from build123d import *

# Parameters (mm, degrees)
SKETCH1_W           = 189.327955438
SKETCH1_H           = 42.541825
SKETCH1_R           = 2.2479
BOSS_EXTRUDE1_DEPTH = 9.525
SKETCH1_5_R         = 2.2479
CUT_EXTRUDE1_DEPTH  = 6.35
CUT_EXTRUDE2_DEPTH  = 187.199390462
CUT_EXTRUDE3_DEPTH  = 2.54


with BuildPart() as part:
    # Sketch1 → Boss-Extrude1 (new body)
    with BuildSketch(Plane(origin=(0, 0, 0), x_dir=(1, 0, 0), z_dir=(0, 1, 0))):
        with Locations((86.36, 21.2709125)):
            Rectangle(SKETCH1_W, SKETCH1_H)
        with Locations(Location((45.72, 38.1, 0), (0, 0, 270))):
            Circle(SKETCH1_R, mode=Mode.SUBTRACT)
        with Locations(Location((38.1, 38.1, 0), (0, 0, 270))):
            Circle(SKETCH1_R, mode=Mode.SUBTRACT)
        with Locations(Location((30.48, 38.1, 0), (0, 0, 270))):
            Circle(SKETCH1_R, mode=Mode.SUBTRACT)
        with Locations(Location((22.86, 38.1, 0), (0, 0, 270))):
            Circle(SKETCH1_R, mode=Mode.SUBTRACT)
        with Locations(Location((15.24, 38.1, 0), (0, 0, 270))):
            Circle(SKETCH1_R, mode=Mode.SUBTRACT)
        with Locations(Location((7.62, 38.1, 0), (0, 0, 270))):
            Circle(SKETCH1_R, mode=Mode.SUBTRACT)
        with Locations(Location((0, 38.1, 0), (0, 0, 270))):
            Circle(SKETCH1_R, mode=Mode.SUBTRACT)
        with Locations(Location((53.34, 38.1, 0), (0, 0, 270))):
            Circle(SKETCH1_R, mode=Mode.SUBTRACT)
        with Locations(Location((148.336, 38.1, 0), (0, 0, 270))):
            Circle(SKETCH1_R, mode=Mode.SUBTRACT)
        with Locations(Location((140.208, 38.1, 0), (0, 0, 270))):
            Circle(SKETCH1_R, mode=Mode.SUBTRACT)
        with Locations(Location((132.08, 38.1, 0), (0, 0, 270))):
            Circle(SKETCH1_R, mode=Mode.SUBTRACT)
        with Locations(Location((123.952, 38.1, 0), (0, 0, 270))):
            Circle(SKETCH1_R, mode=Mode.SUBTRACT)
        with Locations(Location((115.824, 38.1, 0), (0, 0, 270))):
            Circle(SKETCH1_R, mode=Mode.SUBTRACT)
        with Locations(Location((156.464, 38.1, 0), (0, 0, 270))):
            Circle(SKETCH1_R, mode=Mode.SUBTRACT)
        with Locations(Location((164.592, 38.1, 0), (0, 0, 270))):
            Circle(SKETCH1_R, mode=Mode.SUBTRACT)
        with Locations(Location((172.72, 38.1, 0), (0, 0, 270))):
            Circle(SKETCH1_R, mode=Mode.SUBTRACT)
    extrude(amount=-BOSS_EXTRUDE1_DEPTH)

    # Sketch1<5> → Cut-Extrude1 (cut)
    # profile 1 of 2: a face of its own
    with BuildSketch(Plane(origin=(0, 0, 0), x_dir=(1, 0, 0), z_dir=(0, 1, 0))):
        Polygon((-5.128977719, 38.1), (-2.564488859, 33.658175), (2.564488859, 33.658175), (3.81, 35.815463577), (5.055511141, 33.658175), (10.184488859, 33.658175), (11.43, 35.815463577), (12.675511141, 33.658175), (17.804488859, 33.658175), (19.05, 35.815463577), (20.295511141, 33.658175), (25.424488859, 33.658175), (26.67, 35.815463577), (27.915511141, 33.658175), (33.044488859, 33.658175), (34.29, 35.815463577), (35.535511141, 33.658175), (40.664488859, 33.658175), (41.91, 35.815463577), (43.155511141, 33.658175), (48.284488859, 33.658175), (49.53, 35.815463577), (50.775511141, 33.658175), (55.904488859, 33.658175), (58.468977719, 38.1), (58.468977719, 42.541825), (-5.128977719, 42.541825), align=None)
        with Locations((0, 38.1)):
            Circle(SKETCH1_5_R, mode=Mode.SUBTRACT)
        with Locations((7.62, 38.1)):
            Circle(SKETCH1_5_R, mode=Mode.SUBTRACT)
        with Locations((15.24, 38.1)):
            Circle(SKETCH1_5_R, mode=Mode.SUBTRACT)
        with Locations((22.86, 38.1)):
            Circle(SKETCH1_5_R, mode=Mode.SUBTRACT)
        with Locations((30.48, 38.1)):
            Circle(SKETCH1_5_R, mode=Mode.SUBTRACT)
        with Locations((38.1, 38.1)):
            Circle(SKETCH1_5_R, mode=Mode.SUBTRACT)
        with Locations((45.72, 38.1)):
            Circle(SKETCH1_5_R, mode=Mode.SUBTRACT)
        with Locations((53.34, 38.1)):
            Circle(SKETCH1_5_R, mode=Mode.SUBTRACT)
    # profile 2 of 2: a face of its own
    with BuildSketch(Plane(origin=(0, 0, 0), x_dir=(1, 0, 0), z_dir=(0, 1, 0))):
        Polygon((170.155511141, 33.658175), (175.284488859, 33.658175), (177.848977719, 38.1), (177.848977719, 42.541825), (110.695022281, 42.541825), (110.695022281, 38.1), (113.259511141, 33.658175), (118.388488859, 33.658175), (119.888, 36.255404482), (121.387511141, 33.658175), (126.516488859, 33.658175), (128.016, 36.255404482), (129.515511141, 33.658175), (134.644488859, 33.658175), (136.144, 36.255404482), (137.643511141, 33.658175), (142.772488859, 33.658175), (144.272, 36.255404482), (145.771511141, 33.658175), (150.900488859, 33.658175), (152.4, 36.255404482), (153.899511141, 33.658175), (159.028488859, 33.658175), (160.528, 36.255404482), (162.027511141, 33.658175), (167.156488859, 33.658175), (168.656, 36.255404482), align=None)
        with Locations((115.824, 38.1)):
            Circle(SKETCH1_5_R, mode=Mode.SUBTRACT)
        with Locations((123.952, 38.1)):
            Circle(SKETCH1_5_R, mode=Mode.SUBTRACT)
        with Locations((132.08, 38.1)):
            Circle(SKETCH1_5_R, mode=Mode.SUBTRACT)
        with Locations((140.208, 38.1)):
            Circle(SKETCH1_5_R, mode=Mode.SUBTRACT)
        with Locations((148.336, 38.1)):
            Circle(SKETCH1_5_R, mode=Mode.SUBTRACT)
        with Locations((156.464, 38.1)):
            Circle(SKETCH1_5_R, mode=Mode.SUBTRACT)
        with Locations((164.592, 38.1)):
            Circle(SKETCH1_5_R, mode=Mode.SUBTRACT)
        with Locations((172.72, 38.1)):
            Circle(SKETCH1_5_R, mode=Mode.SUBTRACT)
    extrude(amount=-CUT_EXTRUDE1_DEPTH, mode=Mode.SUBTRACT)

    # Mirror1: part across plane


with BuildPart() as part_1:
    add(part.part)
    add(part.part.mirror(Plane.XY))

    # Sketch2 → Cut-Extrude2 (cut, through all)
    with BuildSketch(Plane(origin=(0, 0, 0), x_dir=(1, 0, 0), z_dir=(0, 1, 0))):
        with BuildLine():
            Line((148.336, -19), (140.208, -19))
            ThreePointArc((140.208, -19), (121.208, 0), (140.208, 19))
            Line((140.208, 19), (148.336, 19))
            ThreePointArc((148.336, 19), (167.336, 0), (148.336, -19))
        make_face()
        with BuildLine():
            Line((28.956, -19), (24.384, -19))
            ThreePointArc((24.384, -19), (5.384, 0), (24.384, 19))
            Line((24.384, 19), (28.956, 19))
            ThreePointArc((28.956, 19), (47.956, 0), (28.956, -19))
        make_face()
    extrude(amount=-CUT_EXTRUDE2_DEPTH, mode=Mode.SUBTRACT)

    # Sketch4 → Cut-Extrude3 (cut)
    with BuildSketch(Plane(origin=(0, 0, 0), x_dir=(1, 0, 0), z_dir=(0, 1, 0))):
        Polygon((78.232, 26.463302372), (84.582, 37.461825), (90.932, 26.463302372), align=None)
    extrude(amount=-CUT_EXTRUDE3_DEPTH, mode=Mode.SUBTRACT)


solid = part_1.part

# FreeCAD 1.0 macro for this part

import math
import FreeCAD as App
import Part
import Sketcher
from FreeCAD import Vector
Q = App.Units.Quantity

doc = App.newDocument("Part")
body = doc.addObject("PartDesign::Body", "Body")

sketch1 = doc.addObject("Sketcher::SketchObject", "Sketch")
body.addObject(sketch1)
sketch1.AttachmentSupport = (doc.XZ_Plane, [""])
sketch1.MapMode = "FlatFace"
sketch1.addGeometry([
    Part.LineSegment(Vector(-8.303978, -42.541825, 0), Vector(-8.303978, 0, 0)),
    Part.LineSegment(Vector(-8.303978, 0, 0), Vector(181.023978, 0, 0)),
    Part.LineSegment(Vector(181.023978, 0, 0), Vector(181.023978, -42.541825, 0)),
    Part.LineSegment(Vector(181.023978, -42.541825, 0), Vector(-8.303978, -42.541825, 0)),
    Part.Circle(Vector(0, -38.1, 0), Vector(0, 0, 1), 2.2479),
    Part.Circle(Vector(7.62, -38.1, 0), Vector(0, 0, 1), 2.2479),
    Part.Circle(Vector(15.24, -38.1, 0), Vector(0, 0, 1), 2.2479),
    Part.Circle(Vector(22.86, -38.1, 0), Vector(0, 0, 1), 2.2479),
    Part.Circle(Vector(30.48, -38.1, 0), Vector(0, 0, 1), 2.2479),
    Part.Circle(Vector(38.1, -38.1, 0), Vector(0, 0, 1), 2.2479),
    Part.Circle(Vector(45.72, -38.1, 0), Vector(0, 0, 1), 2.2479),
    Part.Circle(Vector(53.34, -38.1, 0), Vector(0, 0, 1), 2.2479),
    Part.Circle(Vector(115.824, -38.1, 0), Vector(0, 0, 1), 2.2479),
    Part.Circle(Vector(123.952, -38.1, 0), Vector(0, 0, 1), 2.2479),
    Part.Circle(Vector(132.08, -38.1, 0), Vector(0, 0, 1), 2.2479),
    Part.Circle(Vector(140.208, -38.1, 0), Vector(0, 0, 1), 2.2479),
    Part.Circle(Vector(148.336, -38.1, 0), Vector(0, 0, 1), 2.2479),
    Part.Circle(Vector(156.464, -38.1, 0), Vector(0, 0, 1), 2.2479),
    Part.Circle(Vector(164.592, -38.1, 0), Vector(0, 0, 1), 2.2479),
    Part.Circle(Vector(172.72, -38.1, 0), Vector(0, 0, 1), 2.2479),
], False)
sketch1.addConstraint([
    Sketcher.Constraint("Coincident", 0, 2, 1, 1),
    Sketcher.Constraint("Coincident", 1, 2, 2, 1),
    Sketcher.Constraint("Coincident", 2, 2, 3, 1),
    Sketcher.Constraint("Coincident", 3, 2, 0, 1),
    Sketcher.Constraint("Vertical", 0),
    Sketcher.Constraint("Horizontal", 1),
    Sketcher.Constraint("Vertical", 2),
    Sketcher.Constraint("Horizontal", 3),
    Sketcher.Constraint("Equal", 4, 5),
    Sketcher.Constraint("Equal", 5, 6),
    Sketcher.Constraint("Equal", 6, 7),
    Sketcher.Constraint("Equal", 7, 8),
    Sketcher.Constraint("Equal", 8, 9),
    Sketcher.Constraint("Equal", 9, 10),
    Sketcher.Constraint("Equal", 10, 11),
    Sketcher.Constraint("Equal", 11, 12),
    Sketcher.Constraint("Equal", 12, 13),
    Sketcher.Constraint("Equal", 13, 14),
    Sketcher.Constraint("Equal", 14, 15),
    Sketcher.Constraint("Equal", 15, 16),
    Sketcher.Constraint("Equal", 16, 17),
    Sketcher.Constraint("Equal", 17, 18),
    Sketcher.Constraint("Equal", 18, 19),
    Sketcher.Constraint("PointOnObject", 4, 3, -2),
    Sketcher.Constraint("PointOnObject", 0, 2, -1),
    Sketcher.Constraint("Horizontal", 4, 3, 5, 3),
    Sketcher.Constraint("Horizontal", 5, 3, 6, 3),
    Sketcher.Constraint("Horizontal", 6, 3, 7, 3),
    Sketcher.Constraint("Horizontal", 7, 3, 8, 3),
    Sketcher.Constraint("Horizontal", 8, 3, 9, 3),
    Sketcher.Constraint("Horizontal", 9, 3, 10, 3),
    Sketcher.Constraint("Horizontal", 10, 3, 11, 3),
    Sketcher.Constraint("Horizontal", 11, 3, 12, 3),
    Sketcher.Constraint("Horizontal", 12, 3, 13, 3),
    Sketcher.Constraint("Horizontal", 13, 3, 14, 3),
    Sketcher.Constraint("Horizontal", 14, 3, 15, 3),
    Sketcher.Constraint("Horizontal", 15, 3, 16, 3),
    Sketcher.Constraint("Horizontal", 16, 3, 17, 3),
    Sketcher.Constraint("Horizontal", 17, 3, 18, 3),
    Sketcher.Constraint("Horizontal", 18, 3, 19, 3),
    Sketcher.Constraint("Diameter", 4, Q("0.177 in")),
    Sketcher.Constraint("DistanceY", 4, 3, -1, 1, Q("1.5 in")),
    Sketcher.Constraint("DistanceX", -1, 1, 5, 3, Q("0.3 in")),
    Sketcher.Constraint("DistanceX", -1, 1, 6, 3, Q("0.6 in")),
    Sketcher.Constraint("DistanceX", -1, 1, 7, 3, Q("0.9 in")),
    Sketcher.Constraint("DistanceX", -1, 1, 8, 3, Q("1.2 in")),
    Sketcher.Constraint("DistanceX", -1, 1, 9, 3, Q("1.5 in")),
    Sketcher.Constraint("DistanceX", -1, 1, 10, 3, Q("1.8 in")),
    Sketcher.Constraint("DistanceX", -1, 1, 11, 3, Q("2.1 in")),
    Sketcher.Constraint("DistanceX", -1, 1, 14, 3, Q("5.2 in")),
    Sketcher.Constraint("DistanceX", -1, 1, 19, 3, Q("6.8 in")),
    Sketcher.Constraint("DistanceX", 12, 3, 17, 3, Q("1.6 in")),
    Sketcher.Constraint("DistanceX", 13, 3, 18, 3, Q("1.6 in")),
    Sketcher.Constraint("DistanceX", -1, 1, 12, 3, Q("4.56 in")),
    Sketcher.Constraint("DistanceX", -1, 1, 13, 3, Q("4.88 in")),
    Sketcher.Constraint("DistanceX", -1, 1, 15, 3, Q("5.52 in")),
    Sketcher.Constraint("DistanceX", -1, 1, 16, 3, Q("5.84 in")),
    Sketcher.Constraint("DistanceX", 1, 1, 1, 2, 189.327955),
    Sketcher.Constraint("DistanceY", 0, 1, 0, 2, 42.541825),
    Sketcher.Constraint("DistanceX", 0, 2, -1, 1, 8.303978),
])
pad1 = doc.addObject("PartDesign::Pad", "Pad")
body.addObject(pad1)
pad1.Profile = sketch1
pad1.Length = Q("0.375 in")

sketch2 = doc.addObject("Sketcher::SketchObject", "Sketch001")
body.addObject(sketch2)
sketch2.AttachmentSupport = (doc.XZ_Plane, [""])
sketch2.MapMode = "FlatFace"
sketch2.addGeometry([
    Part.LineSegment(Vector(-5.128978, -38.1, 0), Vector(-2.564489, -33.658175, 0)),
    Part.LineSegment(Vector(-2.564489, -33.658175, 0), Vector(2.564489, -33.658175, 0)),
    Part.LineSegment(Vector(2.564489, -33.658175, 0), Vector(3.81, -35.815464, 0)),
    Part.LineSegment(Vector(3.81, -35.815464, 0), Vector(5.055511, -33.658175, 0)),
    Part.LineSegment(Vector(5.055511, -33.658175, 0), Vector(10.184489, -33.658175, 0)),
    Part.LineSegment(Vector(10.184489, -33.658175, 0), Vector(11.43, -35.815464, 0)),
    Part.LineSegment(Vector(11.43, -35.815464, 0), Vector(12.675511, -33.658175, 0)),
    Part.LineSegment(Vector(12.675511, -33.658175, 0), Vector(17.804489, -33.658175, 0)),
    Part.LineSegment(Vector(17.804489, -33.658175, 0), Vector(19.05, -35.815464, 0)),
    Part.LineSegment(Vector(19.05, -35.815464, 0), Vector(20.295511, -33.658175, 0)),
    Part.LineSegment(Vector(20.295511, -33.658175, 0), Vector(25.424489, -33.658175, 0)),
    Part.LineSegment(Vector(25.424489, -33.658175, 0), Vector(26.67, -35.815464, 0)),
    Part.LineSegment(Vector(26.67, -35.815464, 0), Vector(27.915511, -33.658175, 0)),
    Part.LineSegment(Vector(27.915511, -33.658175, 0), Vector(33.044489, -33.658175, 0)),
    Part.LineSegment(Vector(33.044489, -33.658175, 0), Vector(34.29, -35.815464, 0)),
    Part.LineSegment(Vector(34.29, -35.815464, 0), Vector(35.535511, -33.658175, 0)),
    Part.LineSegment(Vector(35.535511, -33.658175, 0), Vector(40.664489, -33.658175, 0)),
    Part.LineSegment(Vector(40.664489, -33.658175, 0), Vector(41.91, -35.815464, 0)),
    Part.LineSegment(Vector(41.91, -35.815464, 0), Vector(43.155511, -33.658175, 0)),
    Part.LineSegment(Vector(43.155511, -33.658175, 0), Vector(48.284489, -33.658175, 0)),
    Part.LineSegment(Vector(48.284489, -33.658175, 0), Vector(49.53, -35.815464, 0)),
    Part.LineSegment(Vector(49.53, -35.815464, 0), Vector(50.775511, -33.658175, 0)),
    Part.LineSegment(Vector(50.775511, -33.658175, 0), Vector(55.904489, -33.658175, 0)),
    Part.LineSegment(Vector(55.904489, -33.658175, 0), Vector(58.468978, -38.1, 0)),
    Part.LineSegment(Vector(58.468978, -38.1, 0), Vector(58.468978, -42.541825, 0)),
    Part.LineSegment(Vector(58.468978, -42.541825, 0), Vector(-5.128978, -42.541825, 0)),
    Part.LineSegment(Vector(-5.128978, -42.541825, 0), Vector(-5.128978, -38.1, 0)),
    Part.Circle(Vector(0, -38.1, 0), Vector(0, 0, 1), 2.2479),
    Part.Circle(Vector(7.62, -38.1, 0), Vector(0, 0, 1), 2.2479),
    Part.Circle(Vector(15.24, -38.1, 0), Vector(0, 0, 1), 2.2479),
    Part.Circle(Vector(22.86, -38.1, 0), Vector(0, 0, 1), 2.2479),
    Part.Circle(Vector(30.48, -38.1, 0), Vector(0, 0, 1), 2.2479),
    Part.Circle(Vector(38.1, -38.1, 0), Vector(0, 0, 1), 2.2479),
    Part.Circle(Vector(45.72, -38.1, 0), Vector(0, 0, 1), 2.2479),
    Part.Circle(Vector(53.34, -38.1, 0), Vector(0, 0, 1), 2.2479),
    Part.LineSegment(Vector(170.155511, -33.658175, 0), Vector(175.284489, -33.658175, 0)),
    Part.LineSegment(Vector(175.284489, -33.658175, 0), Vector(177.848978, -38.1, 0)),
    Part.LineSegment(Vector(177.848978, -38.1, 0), Vector(177.848978, -42.541825, 0)),
    Part.LineSegment(Vector(177.848978, -42.541825, 0), Vector(110.695022, -42.541825, 0)),
    Part.LineSegment(Vector(110.695022, -42.541825, 0), Vector(110.695022, -38.1, 0)),
    Part.LineSegment(Vector(110.695022, -38.1, 0), Vector(113.259511, -33.658175, 0)),
    Part.LineSegment(Vector(113.259511, -33.658175, 0), Vector(118.388489, -33.658175, 0)),
    Part.LineSegment(Vector(118.388489, -33.658175, 0), Vector(119.888, -36.255404, 0)),
    Part.LineSegment(Vector(119.888, -36.255404, 0), Vector(121.387511, -33.658175, 0)),
    Part.LineSegment(Vector(121.387511, -33.658175, 0), Vector(126.516489, -33.658175, 0)),
    Part.LineSegment(Vector(126.516489, -33.658175, 0), Vector(128.016, -36.255404, 0)),
    Part.LineSegment(Vector(128.016, -36.255404, 0), Vector(129.515511, -33.658175, 0)),
    Part.LineSegment(Vector(129.515511, -33.658175, 0), Vector(134.644489, -33.658175, 0)),
    Part.LineSegment(Vector(134.644489, -33.658175, 0), Vector(136.144, -36.255404, 0)),
    Part.LineSegment(Vector(136.144, -36.255404, 0), Vector(137.643511, -33.658175, 0)),
    Part.LineSegment(Vector(137.643511, -33.658175, 0), Vector(142.772489, -33.658175, 0)),
    Part.LineSegment(Vector(142.772489, -33.658175, 0), Vector(144.272, -36.255404, 0)),
    Part.LineSegment(Vector(144.272, -36.255404, 0), Vector(145.771511, -33.658175, 0)),
    Part.LineSegment(Vector(145.771511, -33.658175, 0), Vector(150.900489, -33.658175, 0)),
    Part.LineSegment(Vector(150.900489, -33.658175, 0), Vector(152.4, -36.255404, 0)),
    Part.LineSegment(Vector(152.4, -36.255404, 0), Vector(153.899511, -33.658175, 0)),
    Part.LineSegment(Vector(153.899511, -33.658175, 0), Vector(159.028489, -33.658175, 0)),
    Part.LineSegment(Vector(159.028489, -33.658175, 0), Vector(160.528, -36.255404, 0)),
    Part.LineSegment(Vector(160.528, -36.255404, 0), Vector(162.027511, -33.658175, 0)),
    Part.LineSegment(Vector(162.027511, -33.658175, 0), Vector(167.156489, -33.658175, 0)),
    Part.LineSegment(Vector(167.156489, -33.658175, 0), Vector(168.656, -36.255404, 0)),
    Part.LineSegment(Vector(168.656, -36.255404, 0), Vector(170.155511, -33.658175, 0)),
    Part.Circle(Vector(115.824, -38.1, 0), Vector(0, 0, 1), 2.2479),
    Part.Circle(Vector(123.952, -38.1, 0), Vector(0, 0, 1), 2.2479),
    Part.Circle(Vector(132.08, -38.1, 0), Vector(0, 0, 1), 2.2479),
    Part.Circle(Vector(140.208, -38.1, 0), Vector(0, 0, 1), 2.2479),
    Part.Circle(Vector(148.336, -38.1, 0), Vector(0, 0, 1), 2.2479),
    Part.Circle(Vector(156.464, -38.1, 0), Vector(0, 0, 1), 2.2479),
    Part.Circle(Vector(164.592, -38.1, 0), Vector(0, 0, 1), 2.2479),
    Part.Circle(Vector(172.72, -38.1, 0), Vector(0, 0, 1), 2.2479),
], False)
sketch2.addConstraint([
    Sketcher.Constraint("Coincident", 0, 2, 1, 1),
    Sketcher.Constraint("Coincident", 1, 2, 2, 1),
    Sketcher.Constraint("Coincident", 2, 2, 3, 1),
    Sketcher.Constraint("Coincident", 3, 2, 4, 1),
    Sketcher.Constraint("Coincident", 4, 2, 5, 1),
    Sketcher.Constraint("Coincident", 5, 2, 6, 1),
    Sketcher.Constraint("Coincident", 6, 2, 7, 1),
    Sketcher.Constraint("Coincident", 7, 2, 8, 1),
    Sketcher.Constraint("Coincident", 8, 2, 9, 1),
    Sketcher.Constraint("Coincident", 9, 2, 10, 1),
    Sketcher.Constraint("Coincident", 10, 2, 11, 1),
    Sketcher.Constraint("Coincident", 11, 2, 12, 1),
    Sketcher.Constraint("Coincident", 12, 2, 13, 1),
    Sketcher.Constraint("Coincident", 13, 2, 14, 1),
    Sketcher.Constraint("Coincident", 14, 2, 15, 1),
    Sketcher.Constraint("Coincident", 15, 2, 16, 1),
    Sketcher.Constraint("Coincident", 16, 2, 17, 1),
    Sketcher.Constraint("Coincident", 17, 2, 18, 1),
    Sketcher.Constraint("Coincident", 18, 2, 19, 1),
    Sketcher.Constraint("Coincident", 19, 2, 20, 1),
    Sketcher.Constraint("Coincident", 20, 2, 21, 1),
    Sketcher.Constraint("Coincident", 21, 2, 22, 1),
    Sketcher.Constraint("Coincident", 22, 2, 23, 1),
    Sketcher.Constraint("Coincident", 23, 2, 24, 1),
    Sketcher.Constraint("Coincident", 24, 2, 25, 1),
    Sketcher.Constraint("Coincident", 25, 2, 26, 1),
    Sketcher.Constraint("Coincident", 26, 2, 0, 1),
    Sketcher.Constraint("Coincident", 35, 2, 36, 1),
    Sketcher.Constraint("Coincident", 36, 2, 37, 1),
    Sketcher.Constraint("Coincident", 37, 2, 38, 1),
    Sketcher.Constraint("Coincident", 38, 2, 39, 1),
    Sketcher.Constraint("Coincident", 39, 2, 40, 1),
    Sketcher.Constraint("Coincident", 40, 2, 41, 1),
    Sketcher.Constraint("Coincident", 41, 2, 42, 1),
    Sketcher.Constraint("Coincident", 42, 2, 43, 1),
    Sketcher.Constraint("Coincident", 43, 2, 44, 1),
    Sketcher.Constraint("Coincident", 44, 2, 45, 1),
    Sketcher.Constraint("Coincident", 45, 2, 46, 1),
    Sketcher.Constraint("Coincident", 46, 2, 47, 1),
    Sketcher.Constraint("Coincident", 47, 2, 48, 1),
    Sketcher.Constraint("Coincident", 48, 2, 49, 1),
    Sketcher.Constraint("Coincident", 49, 2, 50, 1),
    Sketcher.Constraint("Coincident", 50, 2, 51, 1),
    Sketcher.Constraint("Coincident", 51, 2, 52, 1),
    Sketcher.Constraint("Coincident", 52, 2, 53, 1),
    Sketcher.Constraint("Coincident", 53, 2, 54, 1),
    Sketcher.Constraint("Coincident", 54, 2, 55, 1),
    Sketcher.Constraint("Coincident", 55, 2, 56, 1),
    Sketcher.Constraint("Coincident", 56, 2, 57, 1),
    Sketcher.Constraint("Coincident", 57, 2, 58, 1),
    Sketcher.Constraint("Coincident", 58, 2, 59, 1),
    Sketcher.Constraint("Coincident", 59, 2, 60, 1),
    Sketcher.Constraint("Coincident", 60, 2, 61, 1),
    Sketcher.Constraint("Coincident", 61, 2, 35, 1),
    Sketcher.Constraint("Horizontal", 1),
    Sketcher.Constraint("Horizontal", 4),
    Sketcher.Constraint("Horizontal", 7),
    Sketcher.Constraint("Horizontal", 10),
    Sketcher.Constraint("Horizontal", 13),
    Sketcher.Constraint("Horizontal", 16),
    Sketcher.Constraint("Horizontal", 19),
    Sketcher.Constraint("Horizontal", 22),
    Sketcher.Constraint("Vertical", 24),
    Sketcher.Constraint("Horizontal", 25),
    Sketcher.Constraint("Vertical", 26),
    Sketcher.Constraint("Horizontal", 35),
    Sketcher.Constraint("Vertical", 37),
    Sketcher.Constraint("Horizontal", 38),
    Sketcher.Constraint("Vertical", 39),
    Sketcher.Constraint("Horizontal", 41),
    Sketcher.Constraint("Horizontal", 44),
    Sketcher.Constraint("Horizontal", 47),
    Sketcher.Constraint("Horizontal", 50),
    Sketcher.Constraint("Horizontal", 53),
    Sketcher.Constraint("Horizontal", 56),
    Sketcher.Constraint("Horizontal", 59),
    Sketcher.Constraint("Equal", 27, 28),
    Sketcher.Constraint("Equal", 28, 29),
    Sketcher.Constraint("Equal", 29, 30),
    Sketcher.Constraint("Equal", 30, 31),
    Sketcher.Constraint("Equal", 31, 32),
    Sketcher.Constraint("Equal", 32, 33),
    Sketcher.Constraint("Equal", 33, 34),
    Sketcher.Constraint("Equal", 34, 62),
    Sketcher.Constraint("Equal", 62, 63),
    Sketcher.Constraint("Equal", 63, 64),
    Sketcher.Constraint("Equal", 64, 65),
    Sketcher.Constraint("Equal", 65, 66),
    Sketcher.Constraint("Equal", 66, 67),
    Sketcher.Constraint("Equal", 67, 68),
    Sketcher.Constraint("Equal", 68, 69),
    Sketcher.Constraint("PointOnObject", 27, 3, -2),
    Sketcher.Constraint("Parallel", 0, 3),
    Sketcher.Constraint("Parallel", 2, 5),
    Sketcher.Constraint("Parallel", 3, 6),
    Sketcher.Constraint("Parallel", 5, 8),
    Sketcher.Constraint("Parallel", 6, 9),
    Sketcher.Constraint("Parallel", 8, 11),
    Sketcher.Constraint("Parallel", 9, 12),
    Sketcher.Constraint("Parallel", 11, 14),
    Sketcher.Constraint("Parallel", 12, 15),
    Sketcher.Constraint("Parallel", 14, 17),
    Sketcher.Constraint("Parallel", 15, 18),
    Sketcher.Constraint("Parallel", 17, 20),
    Sketcher.Constraint("Parallel", 18, 21),
    Sketcher.Constraint("Parallel", 20, 23),
    Sketcher.Constraint("Parallel", 23, 36),
    Sketcher.Constraint("Parallel", 21, 40),
    Sketcher.Constraint("Parallel", 36, 42),
    Sketcher.Constraint("Parallel", 40, 43),
    Sketcher.Constraint("Parallel", 42, 45),
    Sketcher.Constraint("Parallel", 43, 46),
    Sketcher.Constraint("Parallel", 45, 48),
    Sketcher.Constraint("Parallel", 46, 49),
    Sketcher.Constraint("Parallel", 48, 51),
    Sketcher.Constraint("Parallel", 49, 52),
    Sketcher.Constraint("Parallel", 51, 54),
    Sketcher.Constraint("Parallel", 52, 55),
    Sketcher.Constraint("Parallel", 54, 57),
    Sketcher.Constraint("Parallel", 55, 58),
    Sketcher.Constraint("Parallel", 57, 60),
    Sketcher.Constraint("Parallel", 58, 61),
    Sketcher.Constraint("Horizontal", 27, 3, 28, 3),
    Sketcher.Constraint("Horizontal", 28, 3, 29, 3),
    Sketcher.Constraint("Horizontal", 29, 3, 30, 3),
    Sketcher.Constraint("Horizontal", 30, 3, 31, 3),
    Sketcher.Constraint("Horizontal", 31, 3, 32, 3),
    Sketcher.Constraint("Horizontal", 32, 3, 33, 3),
    Sketcher.Constraint("Horizontal", 33, 3, 34, 3),
    Sketcher.Constraint("Horizontal", 34, 3, 62, 3),
    Sketcher.Constraint("Horizontal", 62, 3, 63, 3),
    Sketcher.Constraint("Horizontal", 63, 3, 64, 3),
    Sketcher.Constraint("Horizontal", 64, 3, 65, 3),
    Sketcher.Constraint("Horizontal", 65, 3, 66, 3),
    Sketcher.Constraint("Horizontal", 66, 3, 67, 3),
    Sketcher.Constraint("Horizontal", 67, 3, 68, 3),
    Sketcher.Constraint("Horizontal", 68, 3, 69, 3),
    Sketcher.Constraint("Horizontal", 1, 2, 3, 2),
    Sketcher.Constraint("Horizontal", 2, 2, 5, 2),
    Sketcher.Constraint("Horizontal", 4, 2, 6, 2),
    Sketcher.Constraint("Horizontal", 5, 2, 8, 2),
    Sketcher.Constraint("Horizontal", 7, 2, 9, 2),
    Sketcher.Constraint("Horizontal", 8, 2, 11, 2),
    Sketcher.Constraint("Horizontal", 10, 2, 12, 2),
    Sketcher.Constraint("Horizontal", 11, 2, 14, 2),
    Sketcher.Constraint("Horizontal", 13, 2, 15, 2),
    Sketcher.Constraint("Horizontal", 14, 2, 17, 2),
    Sketcher.Constraint("Horizontal", 16, 2, 18, 2),
    Sketcher.Constraint("Horizontal", 17, 2, 20, 2),
    Sketcher.Constraint("Horizontal", 19, 2, 21, 2),
    Sketcher.Constraint("Horizontal", 69, 3, 23, 2),
    Sketcher.Constraint("Horizontal", 23, 2, 26, 2),
    Sketcher.Constraint("Horizontal", 22, 2, 35, 2),
    Sketcher.Constraint("Horizontal", 26, 2, 36, 2),
    Sketcher.Constraint("Horizontal", 25, 2, 37, 2),
    Sketcher.Constraint("Horizontal", 36, 2, 39, 2),
    Sketcher.Constraint("Horizontal", 35, 2, 40, 2),
    Sketcher.Constraint("Horizontal", 41, 2, 43, 2),
    Sketcher.Constraint("Horizontal", 42, 2, 45, 2),
    Sketcher.Constraint("Horizontal", 44, 2, 46, 2),
    Sketcher.Constraint("Horizontal", 45, 2, 48, 2),
    Sketcher.Constraint("Horizontal", 47, 2, 49, 2),
    Sketcher.Constraint("Horizontal", 48, 2, 51, 2),
    Sketcher.Constraint("Horizontal", 50, 2, 52, 2),
    Sketcher.Constraint("Horizontal", 51, 2, 54, 2),
    Sketcher.Constraint("Horizontal", 53, 2, 55, 2),
    Sketcher.Constraint("Horizontal", 54, 2, 57, 2),
    Sketcher.Constraint("Horizontal", 56, 2, 58, 2),
    Sketcher.Constraint("Horizontal", 57, 2, 60, 2),
    Sketcher.Constraint("Equal", 1, 4),
    Sketcher.Constraint("Equal", 4, 7),
    Sketcher.Constraint("Equal", 7, 10),
    Sketcher.Constraint("Equal", 10, 13),
    Sketcher.Constraint("Equal", 13, 16),
    Sketcher.Constraint("Equal", 16, 19),
    Sketcher.Constraint("Equal", 19, 22),
    Sketcher.Constraint("Equal", 22, 35),
    Sketcher.Constraint("Equal", 35, 41),
    Sketcher.Constraint("Equal", 41, 44),
    Sketcher.Constraint("Equal", 44, 47),
    Sketcher.Constraint("Equal", 47, 50),
    Sketcher.Constraint("Equal", 50, 53),
    Sketcher.Constraint("Equal", 53, 56),
    Sketcher.Constraint("Equal", 56, 59),
    Sketcher.Constraint("Equal", 2, 3),
    Sketcher.Constraint("Diameter", 27, Q("0.177 in")),
    Sketcher.Constraint("DistanceX", -1, 1, 54, 2, Q("6 in")),
    Sketcher.Constraint("Angle", 0, Q("60 deg")),
    Sketcher.Constraint("DistanceY", 27, 3, -1, 1, Q("1.5 in")),
    Sketcher.Constraint("DistanceX", -1, 1, 28, 3, Q("0.3 in")),
    Sketcher.Constraint("DistanceX", -1, 1, 29, 3, Q("0.6 in")),
    Sketcher.Constraint("DistanceX", -1, 1, 30, 3, Q("0.9 in")),
    Sketcher.Constraint("DistanceX", -1, 1, 31, 3, Q("1.2 in")),
    Sketcher.Constraint("DistanceX", -1, 1, 32, 3, Q("1.5 in")),
    Sketcher.Constraint("DistanceX", -1, 1, 33, 3, Q("1.8 in")),
    Sketcher.Constraint("DistanceX", -1, 1, 34, 3, Q("2.1 in")),
    Sketcher.Constraint("DistanceX", -1, 1, 64, 3, Q("5.2 in")),
    Sketcher.Constraint("DistanceX", -1, 1, 69, 3, Q("6.8 in")),
    Sketcher.Constraint("DistanceX", -1, 1, 62, 3, Q("4.56 in")),
    Sketcher.Constraint("DistanceX", -1, 1, 63, 3, Q("4.88 in")),
    Sketcher.Constraint("DistanceX", -1, 1, 65, 3, Q("5.52 in")),
    Sketcher.Constraint("DistanceX", -1, 1, 66, 3, Q("5.84 in")),
    Sketcher.Constraint("DistanceX", -1, 1, 67, 3, Q("6.16 in")),
    Sketcher.Constraint("DistanceX", -1, 1, 68, 3, Q("6.48 in")),
    Sketcher.Constraint("DistanceX", -1, 1, 2, 2, Q("0.15 in")),
    Sketcher.Constraint("DistanceX", -1, 1, 5, 2, Q("0.45 in")),
    Sketcher.Constraint("DistanceX", -1, 1, 42, 2, Q("4.72 in")),
    Sketcher.Constraint("DistanceX", 1, 1, 1, 2, 5.128978),
    Sketcher.Constraint("DistanceX", 25, 2, 25, 1, 63.597955),
    Sketcher.Constraint("DistanceY", 24, 2, 24, 1, 4.441825),
])
pocket1 = doc.addObject("PartDesign::Pocket", "Pocket")
body.addObject(pocket1)
pocket1.Profile = sketch2
pocket1.Length = Q("0.25 in")
pocket1.Reversed = True
body2 = doc.addObject("PartDesign::Body", "Body001")
doc.recompute()

body2.BaseFeature = body
doc.recompute()

mirroring = doc.addObject("Part::Mirroring", "Mirroring")
mirroring.Source = body
mirroring.Base = Vector(0, 0, 0)
mirroring.Normal = Vector(0, 0, 1)
body3 = doc.addObject("PartDesign::Body", "Body002")
body3.BaseFeature = mirroring
boolean = doc.addObject("PartDesign::Boolean", "Boolean")
body2.addObject(boolean)
boolean.Type = "Fuse"
boolean.addObjects([body3])
doc.recompute()

sketch3 = doc.addObject("Sketcher::SketchObject", "Sketch002")
body2.addObject(sketch3)
sketch3.AttachmentSupport = (doc.getObject("XZ_Plane001"), [""])
sketch3.MapMode = "FlatFace"
sketch3.addGeometry([
    Part.LineSegment(Vector(140.208, 19, 0), Vector(148.336, 19, 0)),
    Part.ArcOfCircle(Part.Circle(Vector(148.336, 0, 0), Vector(0, 0, 1), 19), math.radians(-90), math.radians(90)),
    Part.LineSegment(Vector(148.336, -19, 0), Vector(140.208, -19, 0)),
    Part.ArcOfCircle(Part.Circle(Vector(140.208, 0, 0), Vector(0, 0, 1), 19), math.radians(90), math.radians(270)),
    Part.LineSegment(Vector(24.384, 19, 0), Vector(28.956, 19, 0)),
    Part.ArcOfCircle(Part.Circle(Vector(28.956, 0, 0), Vector(0, 0, 1), 19), math.radians(-90), math.radians(90)),
    Part.LineSegment(Vector(28.956, -19, 0), Vector(24.384, -19, 0)),
    Part.ArcOfCircle(Part.Circle(Vector(24.384, 0, 0), Vector(0, 0, 1), 19), math.radians(90), math.radians(270)),
], False)
sketch3.addConstraint([
    Sketcher.Constraint("Tangent", 0, 2, 1, 2),
    Sketcher.Constraint("Tangent", 1, 1, 2, 1),
    Sketcher.Constraint("Tangent", 2, 2, 3, 2),
    Sketcher.Constraint("Tangent", 3, 1, 0, 1),
    Sketcher.Constraint("Tangent", 4, 2, 5, 2),
    Sketcher.Constraint("Tangent", 5, 1, 6, 1),
    Sketcher.Constraint("Tangent", 6, 2, 7, 2),
    Sketcher.Constraint("Tangent", 7, 1, 4, 1),
    Sketcher.Constraint("Horizontal", 0),
    Sketcher.Constraint("Horizontal", 2),
    Sketcher.Constraint("Horizontal", 4),
    Sketcher.Constraint("Horizontal", 6),
    Sketcher.Constraint("Equal", 3, 5),
    Sketcher.Constraint("PointOnObject", 1, 3, -1),
    Sketcher.Constraint("PointOnObject", 5, 3, -1),
    Sketcher.Constraint("DistanceX", 0, 1, 0, 2, Q("0.32 in")),
    Sketcher.Constraint("DistanceX", 4, 1, 4, 2, Q("0.18 in")),
    Sketcher.Constraint("DistanceX", 5, 3, 1, 3, Q("4.7 in")),
    Sketcher.Constraint("DistanceX", -1, 1, 1, 3, Q("5.84 in")),
    Sketcher.Constraint("Radius", 1, 19.0),
])
pocket2 = doc.addObject("PartDesign::Pocket", "Pocket001")
body2.addObject(pocket2)
pocket2.Profile = sketch3
pocket2.Type = "ThroughAll"
pocket2.Reversed = True

sketch4 = doc.addObject("Sketcher::SketchObject", "Sketch003")
body2.addObject(sketch4)
sketch4.AttachmentSupport = (doc.getObject("XZ_Plane001"), [""])
sketch4.MapMode = "FlatFace"
sketch4.addGeometry([
    Part.LineSegment(Vector(84.582, -37.461825, 0), Vector(78.232, -26.463302, 0)),
    Part.LineSegment(Vector(78.232, -26.463302, 0), Vector(90.932, -26.463302, 0)),
    Part.LineSegment(Vector(90.932, -26.463302, 0), Vector(84.582, -37.461825, 0)),
], False)
sketch4.addConstraint([
    Sketcher.Constraint("Coincident", 0, 2, 1, 1),
    Sketcher.Constraint("Coincident", 1, 2, 2, 1),
    Sketcher.Constraint("Coincident", 2, 2, 0, 1),
    Sketcher.Constraint("Horizontal", 1),
    Sketcher.Constraint("Equal", 0, 2),
    Sketcher.Constraint("DistanceX", 1, 1, 1, 2, Q("0.5 in")),
    Sketcher.Constraint("Angle", 0, Q("120 deg")),
    Sketcher.Constraint("DistanceX", -1, 1, 0, 2, Q("3.08 in")),
    Sketcher.Constraint("DistanceY", 0, 2, -1, 1, 26.463302),
])
pocket3 = doc.addObject("PartDesign::Pocket", "Pocket002")
body2.addObject(pocket3)
pocket3.Profile = sketch4
pocket3.Length = Q("0.1 in")
pocket3.Reversed = True
mirroring.Visibility = False

doc.recompute()
